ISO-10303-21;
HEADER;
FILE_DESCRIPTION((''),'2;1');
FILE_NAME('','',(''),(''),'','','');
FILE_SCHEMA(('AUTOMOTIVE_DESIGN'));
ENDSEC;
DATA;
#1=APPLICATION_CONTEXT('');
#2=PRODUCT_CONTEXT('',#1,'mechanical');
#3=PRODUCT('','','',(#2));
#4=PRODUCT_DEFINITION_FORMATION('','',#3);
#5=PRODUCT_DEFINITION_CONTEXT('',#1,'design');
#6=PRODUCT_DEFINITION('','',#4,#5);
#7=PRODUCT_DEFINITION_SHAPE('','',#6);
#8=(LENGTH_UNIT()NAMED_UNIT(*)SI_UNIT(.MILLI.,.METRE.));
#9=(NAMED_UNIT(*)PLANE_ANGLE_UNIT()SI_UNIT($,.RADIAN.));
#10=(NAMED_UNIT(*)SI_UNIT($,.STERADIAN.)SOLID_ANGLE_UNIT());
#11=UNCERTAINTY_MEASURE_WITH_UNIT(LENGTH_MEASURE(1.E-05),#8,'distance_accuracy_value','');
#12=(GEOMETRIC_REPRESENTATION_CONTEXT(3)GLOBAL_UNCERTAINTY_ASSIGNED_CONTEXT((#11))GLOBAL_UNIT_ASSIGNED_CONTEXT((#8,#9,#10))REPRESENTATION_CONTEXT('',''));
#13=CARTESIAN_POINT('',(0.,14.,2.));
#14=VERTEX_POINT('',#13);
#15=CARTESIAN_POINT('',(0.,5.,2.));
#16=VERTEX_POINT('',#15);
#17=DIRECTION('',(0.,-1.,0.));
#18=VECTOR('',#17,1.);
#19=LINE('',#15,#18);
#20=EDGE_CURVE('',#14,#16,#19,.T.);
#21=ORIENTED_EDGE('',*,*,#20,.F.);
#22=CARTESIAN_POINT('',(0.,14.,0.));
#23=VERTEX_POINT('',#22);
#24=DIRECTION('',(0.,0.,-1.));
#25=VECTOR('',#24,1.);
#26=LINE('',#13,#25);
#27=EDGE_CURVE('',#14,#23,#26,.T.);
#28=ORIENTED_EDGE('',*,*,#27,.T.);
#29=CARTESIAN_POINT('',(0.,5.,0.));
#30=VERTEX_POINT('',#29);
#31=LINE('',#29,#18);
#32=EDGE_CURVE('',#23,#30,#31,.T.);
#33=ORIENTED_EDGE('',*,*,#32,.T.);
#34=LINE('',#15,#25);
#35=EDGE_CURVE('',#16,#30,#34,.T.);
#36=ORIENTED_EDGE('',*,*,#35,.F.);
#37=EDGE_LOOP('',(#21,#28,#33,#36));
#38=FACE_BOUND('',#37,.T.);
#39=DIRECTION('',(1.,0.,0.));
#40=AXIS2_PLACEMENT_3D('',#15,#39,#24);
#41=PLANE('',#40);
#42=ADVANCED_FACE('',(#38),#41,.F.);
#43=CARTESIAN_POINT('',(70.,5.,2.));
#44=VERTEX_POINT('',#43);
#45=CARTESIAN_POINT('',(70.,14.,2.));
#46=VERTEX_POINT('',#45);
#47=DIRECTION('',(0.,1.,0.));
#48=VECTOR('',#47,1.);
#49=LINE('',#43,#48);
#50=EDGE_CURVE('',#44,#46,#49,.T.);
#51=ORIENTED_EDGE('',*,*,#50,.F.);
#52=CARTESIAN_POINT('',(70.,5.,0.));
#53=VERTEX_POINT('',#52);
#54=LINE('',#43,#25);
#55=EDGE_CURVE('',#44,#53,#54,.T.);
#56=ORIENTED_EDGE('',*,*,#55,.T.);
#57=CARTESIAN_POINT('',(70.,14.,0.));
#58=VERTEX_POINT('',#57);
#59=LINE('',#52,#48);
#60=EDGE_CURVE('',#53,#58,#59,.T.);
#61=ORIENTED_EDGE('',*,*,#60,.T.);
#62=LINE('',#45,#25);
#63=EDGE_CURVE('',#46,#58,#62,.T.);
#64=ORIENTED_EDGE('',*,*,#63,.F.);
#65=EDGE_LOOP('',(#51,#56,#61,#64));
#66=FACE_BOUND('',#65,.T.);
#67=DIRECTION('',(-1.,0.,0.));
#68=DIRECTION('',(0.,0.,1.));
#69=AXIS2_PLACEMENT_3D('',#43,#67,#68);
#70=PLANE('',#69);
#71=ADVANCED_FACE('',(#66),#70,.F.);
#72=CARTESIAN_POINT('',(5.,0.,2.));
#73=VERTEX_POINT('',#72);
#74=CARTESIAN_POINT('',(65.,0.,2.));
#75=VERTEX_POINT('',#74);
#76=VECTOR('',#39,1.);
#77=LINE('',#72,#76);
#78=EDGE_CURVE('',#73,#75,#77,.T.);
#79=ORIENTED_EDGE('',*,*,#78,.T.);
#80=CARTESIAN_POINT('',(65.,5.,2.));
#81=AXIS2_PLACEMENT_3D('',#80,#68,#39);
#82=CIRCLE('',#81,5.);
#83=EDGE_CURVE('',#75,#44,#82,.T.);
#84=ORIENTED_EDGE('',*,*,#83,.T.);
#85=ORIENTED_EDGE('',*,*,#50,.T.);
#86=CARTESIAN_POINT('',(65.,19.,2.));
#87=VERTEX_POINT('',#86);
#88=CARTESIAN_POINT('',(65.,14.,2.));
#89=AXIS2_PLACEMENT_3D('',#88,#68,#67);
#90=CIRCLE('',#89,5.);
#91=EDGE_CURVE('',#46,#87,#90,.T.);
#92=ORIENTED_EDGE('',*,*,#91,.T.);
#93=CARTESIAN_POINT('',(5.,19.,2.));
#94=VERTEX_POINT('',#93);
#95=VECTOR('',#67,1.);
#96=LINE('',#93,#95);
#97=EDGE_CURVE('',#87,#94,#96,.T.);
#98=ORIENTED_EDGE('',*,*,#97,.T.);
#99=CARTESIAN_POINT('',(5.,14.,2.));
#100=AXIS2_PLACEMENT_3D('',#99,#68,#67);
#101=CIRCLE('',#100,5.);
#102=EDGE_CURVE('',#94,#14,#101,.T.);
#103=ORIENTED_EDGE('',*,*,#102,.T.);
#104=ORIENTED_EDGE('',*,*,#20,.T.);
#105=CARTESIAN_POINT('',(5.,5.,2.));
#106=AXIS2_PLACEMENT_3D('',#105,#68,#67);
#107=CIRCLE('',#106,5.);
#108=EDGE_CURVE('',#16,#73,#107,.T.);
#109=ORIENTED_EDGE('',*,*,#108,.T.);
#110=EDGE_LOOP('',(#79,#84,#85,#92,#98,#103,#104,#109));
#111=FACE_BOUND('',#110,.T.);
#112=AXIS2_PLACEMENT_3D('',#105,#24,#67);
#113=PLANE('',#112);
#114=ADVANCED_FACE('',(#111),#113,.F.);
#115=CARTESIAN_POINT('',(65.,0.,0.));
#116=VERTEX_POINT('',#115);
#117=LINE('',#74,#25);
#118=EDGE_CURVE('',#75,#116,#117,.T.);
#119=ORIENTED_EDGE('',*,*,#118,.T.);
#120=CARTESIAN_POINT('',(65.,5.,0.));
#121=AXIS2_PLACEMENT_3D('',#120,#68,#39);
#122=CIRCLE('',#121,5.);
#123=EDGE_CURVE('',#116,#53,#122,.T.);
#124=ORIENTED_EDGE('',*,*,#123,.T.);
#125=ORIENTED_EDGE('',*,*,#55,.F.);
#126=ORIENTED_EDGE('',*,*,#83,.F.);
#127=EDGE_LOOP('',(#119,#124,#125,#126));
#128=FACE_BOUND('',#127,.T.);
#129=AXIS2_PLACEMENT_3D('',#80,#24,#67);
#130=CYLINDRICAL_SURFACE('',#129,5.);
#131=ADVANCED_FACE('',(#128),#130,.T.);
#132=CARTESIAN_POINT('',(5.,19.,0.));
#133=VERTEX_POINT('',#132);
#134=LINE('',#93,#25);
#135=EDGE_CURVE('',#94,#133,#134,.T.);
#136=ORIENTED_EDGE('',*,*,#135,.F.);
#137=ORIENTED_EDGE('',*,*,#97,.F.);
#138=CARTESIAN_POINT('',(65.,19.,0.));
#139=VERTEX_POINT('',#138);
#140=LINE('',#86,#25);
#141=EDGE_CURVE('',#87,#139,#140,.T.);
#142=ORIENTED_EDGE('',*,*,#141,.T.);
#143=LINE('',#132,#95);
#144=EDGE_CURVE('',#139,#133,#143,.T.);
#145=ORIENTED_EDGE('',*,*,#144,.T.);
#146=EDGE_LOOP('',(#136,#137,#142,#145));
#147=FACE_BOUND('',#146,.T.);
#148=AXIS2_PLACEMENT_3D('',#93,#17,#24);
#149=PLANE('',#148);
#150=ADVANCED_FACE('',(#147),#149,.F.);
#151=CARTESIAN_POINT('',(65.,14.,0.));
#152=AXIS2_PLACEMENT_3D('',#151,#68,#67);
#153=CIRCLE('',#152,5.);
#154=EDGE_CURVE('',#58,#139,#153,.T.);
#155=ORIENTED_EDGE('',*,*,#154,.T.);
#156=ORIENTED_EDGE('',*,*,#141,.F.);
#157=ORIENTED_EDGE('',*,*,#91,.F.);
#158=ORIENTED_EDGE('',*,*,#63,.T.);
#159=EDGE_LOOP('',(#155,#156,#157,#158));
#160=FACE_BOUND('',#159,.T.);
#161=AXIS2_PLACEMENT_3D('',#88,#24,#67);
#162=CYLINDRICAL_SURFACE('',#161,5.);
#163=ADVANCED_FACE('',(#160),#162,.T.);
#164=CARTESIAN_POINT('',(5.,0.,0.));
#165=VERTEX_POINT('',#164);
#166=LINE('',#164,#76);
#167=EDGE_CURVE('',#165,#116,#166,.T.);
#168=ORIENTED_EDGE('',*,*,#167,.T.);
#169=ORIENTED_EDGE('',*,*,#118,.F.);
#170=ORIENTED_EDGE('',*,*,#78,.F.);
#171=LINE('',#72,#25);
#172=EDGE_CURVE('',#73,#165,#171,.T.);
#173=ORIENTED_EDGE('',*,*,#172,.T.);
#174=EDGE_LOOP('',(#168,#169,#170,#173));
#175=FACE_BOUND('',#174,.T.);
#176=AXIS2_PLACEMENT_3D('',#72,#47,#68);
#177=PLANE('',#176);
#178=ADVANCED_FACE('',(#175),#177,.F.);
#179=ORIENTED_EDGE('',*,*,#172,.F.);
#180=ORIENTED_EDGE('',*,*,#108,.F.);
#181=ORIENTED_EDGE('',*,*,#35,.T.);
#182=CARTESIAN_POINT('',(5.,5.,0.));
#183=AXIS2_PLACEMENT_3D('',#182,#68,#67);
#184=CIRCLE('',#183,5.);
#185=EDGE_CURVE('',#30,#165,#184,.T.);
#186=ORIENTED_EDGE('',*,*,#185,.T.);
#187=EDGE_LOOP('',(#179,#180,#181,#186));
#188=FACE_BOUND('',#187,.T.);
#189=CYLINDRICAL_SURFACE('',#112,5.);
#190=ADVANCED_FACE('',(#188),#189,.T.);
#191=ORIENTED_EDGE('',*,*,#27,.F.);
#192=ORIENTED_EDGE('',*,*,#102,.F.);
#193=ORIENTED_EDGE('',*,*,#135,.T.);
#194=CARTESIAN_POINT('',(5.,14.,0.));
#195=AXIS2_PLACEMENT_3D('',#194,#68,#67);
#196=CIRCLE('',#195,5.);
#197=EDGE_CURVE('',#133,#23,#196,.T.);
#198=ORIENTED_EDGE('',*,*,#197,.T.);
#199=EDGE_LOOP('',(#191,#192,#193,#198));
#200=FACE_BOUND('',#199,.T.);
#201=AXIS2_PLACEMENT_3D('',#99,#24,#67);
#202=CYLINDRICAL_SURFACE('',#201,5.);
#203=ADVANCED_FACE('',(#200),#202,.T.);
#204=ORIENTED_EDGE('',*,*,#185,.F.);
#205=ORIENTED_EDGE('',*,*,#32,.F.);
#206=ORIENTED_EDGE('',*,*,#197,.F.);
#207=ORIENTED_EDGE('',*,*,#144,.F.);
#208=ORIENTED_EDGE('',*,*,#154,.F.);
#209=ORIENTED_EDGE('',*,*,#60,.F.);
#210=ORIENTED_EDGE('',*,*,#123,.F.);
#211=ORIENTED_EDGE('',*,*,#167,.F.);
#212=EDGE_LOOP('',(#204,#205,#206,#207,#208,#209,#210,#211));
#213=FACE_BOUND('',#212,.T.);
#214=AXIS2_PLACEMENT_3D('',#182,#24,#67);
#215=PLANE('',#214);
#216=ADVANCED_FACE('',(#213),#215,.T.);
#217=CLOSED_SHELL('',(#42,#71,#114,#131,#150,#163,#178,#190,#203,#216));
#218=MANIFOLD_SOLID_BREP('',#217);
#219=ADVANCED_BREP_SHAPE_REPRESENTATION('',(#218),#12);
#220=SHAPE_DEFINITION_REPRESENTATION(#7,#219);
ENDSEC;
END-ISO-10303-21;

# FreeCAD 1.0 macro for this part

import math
import FreeCAD as App
import Part
import Sketcher

V = App.Vector

doc = App.newDocument("Part")
body = doc.addObject("PartDesign::Body", "Body")

# Sketch on XY plane
sketch1 = body.newObject("Sketcher::SketchObject", "Sketch")
sketch1.AttachmentSupport = (doc.getObject("XY_Plane"), [""])
sketch1.MapMode = "FlatFace"
sketch1.addGeometry([
    Part.LineSegment(V(5, 0, 0), V(65, 0, 0)),  # 0
    Part.ArcOfCircle(Part.Circle(V(65, 5, 0), V(0, 0, 1), 5), math.radians(-90), math.radians(0)),  # 1
    Part.LineSegment(V(70, 5, 0), V(70, 14, 0)),  # 2
    Part.ArcOfCircle(Part.Circle(V(65, 14, 0), V(0, 0, 1), 5), math.radians(0), math.radians(90)),  # 3
    Part.LineSegment(V(65, 19, 0), V(5, 19, 0)),  # 4
    Part.ArcOfCircle(Part.Circle(V(5, 14, 0), V(0, 0, 1), 5), math.radians(90), math.radians(180)),  # 5
    Part.LineSegment(V(0, 14, 0), V(0, 5, 0)),  # 6
    Part.ArcOfCircle(Part.Circle(V(5, 5, 0), V(0, 0, 1), 5), math.radians(180), math.radians(270)),  # 7
], False)
sketch1.addConstraint([
    Sketcher.Constraint("Tangent", 0, 2, 1, 1),
    Sketcher.Constraint("Tangent", 1, 2, 2, 1),
    Sketcher.Constraint("Tangent", 2, 2, 3, 1),
    Sketcher.Constraint("Tangent", 3, 2, 4, 1),
    Sketcher.Constraint("Tangent", 4, 2, 5, 1),
    Sketcher.Constraint("Tangent", 5, 2, 6, 1),
    Sketcher.Constraint("Tangent", 6, 2, 7, 1),
    Sketcher.Constraint("Tangent", 7, 2, 0, 1),
    Sketcher.Constraint("Horizontal", 0),
    Sketcher.Constraint("Vertical", 2),
    Sketcher.Constraint("Horizontal", 4),
    Sketcher.Constraint("Vertical", 6),
    Sketcher.Constraint("Equal", 1, 3),
    Sketcher.Constraint("Equal", 3, 5),
    Sketcher.Constraint("Equal", 5, 7),
    Sketcher.Constraint("PointOnObject", 0, 2, -1),
    Sketcher.Constraint("PointOnObject", 5, 2, -2),
    Sketcher.Constraint("Radius", 1, 5.0),
    Sketcher.Constraint("DistanceX", 0, 1, 0, 2, 60.0),
    Sketcher.Constraint("DistanceY", 2, 1, 2, 2, 9.0),
])
pad1 = body.newObject("PartDesign::Pad", "Pad")
pad1.Profile = sketch1
pad1.Length = 2

doc.recompute()
